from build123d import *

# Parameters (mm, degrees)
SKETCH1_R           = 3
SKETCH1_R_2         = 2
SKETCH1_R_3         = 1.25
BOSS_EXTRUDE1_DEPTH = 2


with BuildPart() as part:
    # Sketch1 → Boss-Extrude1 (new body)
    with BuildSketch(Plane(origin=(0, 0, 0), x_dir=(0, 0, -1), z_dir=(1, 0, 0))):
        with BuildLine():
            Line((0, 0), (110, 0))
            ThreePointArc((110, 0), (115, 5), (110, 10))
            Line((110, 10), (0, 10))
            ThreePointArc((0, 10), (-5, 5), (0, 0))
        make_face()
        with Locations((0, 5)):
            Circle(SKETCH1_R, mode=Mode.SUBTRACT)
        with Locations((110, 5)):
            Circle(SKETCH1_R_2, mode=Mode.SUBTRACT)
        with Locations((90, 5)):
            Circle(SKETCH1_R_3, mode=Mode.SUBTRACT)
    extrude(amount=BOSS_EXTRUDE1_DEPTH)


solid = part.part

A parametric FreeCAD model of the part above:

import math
import FreeCAD as App
import Part
import Sketcher
Q = App.Units.Quantity

doc = App.newDocument("Part")
params = doc.addObject("Spreadsheet::Sheet", "Params")
for row, (alias, value) in enumerate([
    ("sketch1_diameter", "6 mm"),
    ("sketch1_diameter2", "4 mm"),
    ("sketch1_radius", "5 mm"),
    ("sketch1_diameter3", "2.5 mm"),
    ("sketch1_height", "110 mm"),
    ("pad1_length", "2 mm"),
], start=1):
    params.set(f"A{row}", alias)
    params.set(f"B{row}", "=" + value)
    params.setAlias(f"B{row}", alias)

body = doc.addObject("PartDesign::Body", "Body")

# Sketch on YZ plane
sketch1 = body.newObject("Sketcher::SketchObject", "Sketch")
sketch1.AttachmentSupport = (doc.getObject("YZ_Plane"), [""])
sketch1.MapMode = "FlatFace"
sketch1.addGeometry([
    Part.LineSegment(App.Vector(0, 0, 0), App.Vector(0, -110, 0)),  # 0
    Part.ArcOfCircle(Part.Circle(App.Vector(5, -110, 0), App.Vector(0, 0, 1), 5), math.radians(180), math.radians(360)),  # 1
    Part.LineSegment(App.Vector(10, -110, 0), App.Vector(10, 0, 0)),  # 2
    Part.ArcOfCircle(Part.Circle(App.Vector(5, 0, 0), App.Vector(0, 0, 1), 5), math.radians(0), math.radians(180)),  # 3
    Part.Circle(App.Vector(5, 0, 0), App.Vector(0, 0, 1), 3),  # 4
    Part.Circle(App.Vector(5, -90, 0), App.Vector(0, 0, 1), 1.25),  # 5
    Part.Circle(App.Vector(5, -110, 0), App.Vector(0, 0, 1), 2),  # 6
], False)
sketch1.addConstraint([
    Sketcher.Constraint("Tangent", 0, 2, 1, 1),
    Sketcher.Constraint("Tangent", 1, 2, 2, 1),
    Sketcher.Constraint("Tangent", 2, 2, 3, 1),
    Sketcher.Constraint("Tangent", 3, 2, 0, 1),
    Sketcher.Constraint("Vertical", 0),
    Sketcher.Constraint("Vertical", 2),
    Sketcher.Constraint("Coincident", 3, 2, -1, 1),
    Sketcher.Constraint("Coincident", 4, 3, 3, 3),
    Sketcher.Constraint("Coincident", 6, 3, 1, 3),
    Sketcher.Constraint("Vertical", 4, 3, 5, 3),
    Sketcher.Constraint("Diameter", 4, Q("6 mm")),
    Sketcher.Constraint("Diameter", 6, Q("4 mm")),
    Sketcher.Constraint("Radius", 1, Q("5 mm")),
    Sketcher.Constraint("Diameter", 5, Q("2.5 mm")),
    Sketcher.Constraint("DistanceY", 0, 2, 0, 1, Q("110 mm")),
    Sketcher.Constraint("DistanceY", 5, 3, -1, 1, Q("90 mm")),
])
sketch1.setExpression("Constraints[10]", "Params.sketch1_diameter")
sketch1.setExpression("Constraints[11]", "Params.sketch1_diameter2")
sketch1.setExpression("Constraints[12]", "Params.sketch1_radius")
sketch1.setExpression("Constraints[13]", "Params.sketch1_diameter3")
sketch1.setExpression("Constraints[14]", "Params.sketch1_height")
pad1 = body.newObject("PartDesign::Pad", "Pad")
pad1.Profile = sketch1
pad1.setExpression("Length", "Params.pad1_length")

doc.recompute()
